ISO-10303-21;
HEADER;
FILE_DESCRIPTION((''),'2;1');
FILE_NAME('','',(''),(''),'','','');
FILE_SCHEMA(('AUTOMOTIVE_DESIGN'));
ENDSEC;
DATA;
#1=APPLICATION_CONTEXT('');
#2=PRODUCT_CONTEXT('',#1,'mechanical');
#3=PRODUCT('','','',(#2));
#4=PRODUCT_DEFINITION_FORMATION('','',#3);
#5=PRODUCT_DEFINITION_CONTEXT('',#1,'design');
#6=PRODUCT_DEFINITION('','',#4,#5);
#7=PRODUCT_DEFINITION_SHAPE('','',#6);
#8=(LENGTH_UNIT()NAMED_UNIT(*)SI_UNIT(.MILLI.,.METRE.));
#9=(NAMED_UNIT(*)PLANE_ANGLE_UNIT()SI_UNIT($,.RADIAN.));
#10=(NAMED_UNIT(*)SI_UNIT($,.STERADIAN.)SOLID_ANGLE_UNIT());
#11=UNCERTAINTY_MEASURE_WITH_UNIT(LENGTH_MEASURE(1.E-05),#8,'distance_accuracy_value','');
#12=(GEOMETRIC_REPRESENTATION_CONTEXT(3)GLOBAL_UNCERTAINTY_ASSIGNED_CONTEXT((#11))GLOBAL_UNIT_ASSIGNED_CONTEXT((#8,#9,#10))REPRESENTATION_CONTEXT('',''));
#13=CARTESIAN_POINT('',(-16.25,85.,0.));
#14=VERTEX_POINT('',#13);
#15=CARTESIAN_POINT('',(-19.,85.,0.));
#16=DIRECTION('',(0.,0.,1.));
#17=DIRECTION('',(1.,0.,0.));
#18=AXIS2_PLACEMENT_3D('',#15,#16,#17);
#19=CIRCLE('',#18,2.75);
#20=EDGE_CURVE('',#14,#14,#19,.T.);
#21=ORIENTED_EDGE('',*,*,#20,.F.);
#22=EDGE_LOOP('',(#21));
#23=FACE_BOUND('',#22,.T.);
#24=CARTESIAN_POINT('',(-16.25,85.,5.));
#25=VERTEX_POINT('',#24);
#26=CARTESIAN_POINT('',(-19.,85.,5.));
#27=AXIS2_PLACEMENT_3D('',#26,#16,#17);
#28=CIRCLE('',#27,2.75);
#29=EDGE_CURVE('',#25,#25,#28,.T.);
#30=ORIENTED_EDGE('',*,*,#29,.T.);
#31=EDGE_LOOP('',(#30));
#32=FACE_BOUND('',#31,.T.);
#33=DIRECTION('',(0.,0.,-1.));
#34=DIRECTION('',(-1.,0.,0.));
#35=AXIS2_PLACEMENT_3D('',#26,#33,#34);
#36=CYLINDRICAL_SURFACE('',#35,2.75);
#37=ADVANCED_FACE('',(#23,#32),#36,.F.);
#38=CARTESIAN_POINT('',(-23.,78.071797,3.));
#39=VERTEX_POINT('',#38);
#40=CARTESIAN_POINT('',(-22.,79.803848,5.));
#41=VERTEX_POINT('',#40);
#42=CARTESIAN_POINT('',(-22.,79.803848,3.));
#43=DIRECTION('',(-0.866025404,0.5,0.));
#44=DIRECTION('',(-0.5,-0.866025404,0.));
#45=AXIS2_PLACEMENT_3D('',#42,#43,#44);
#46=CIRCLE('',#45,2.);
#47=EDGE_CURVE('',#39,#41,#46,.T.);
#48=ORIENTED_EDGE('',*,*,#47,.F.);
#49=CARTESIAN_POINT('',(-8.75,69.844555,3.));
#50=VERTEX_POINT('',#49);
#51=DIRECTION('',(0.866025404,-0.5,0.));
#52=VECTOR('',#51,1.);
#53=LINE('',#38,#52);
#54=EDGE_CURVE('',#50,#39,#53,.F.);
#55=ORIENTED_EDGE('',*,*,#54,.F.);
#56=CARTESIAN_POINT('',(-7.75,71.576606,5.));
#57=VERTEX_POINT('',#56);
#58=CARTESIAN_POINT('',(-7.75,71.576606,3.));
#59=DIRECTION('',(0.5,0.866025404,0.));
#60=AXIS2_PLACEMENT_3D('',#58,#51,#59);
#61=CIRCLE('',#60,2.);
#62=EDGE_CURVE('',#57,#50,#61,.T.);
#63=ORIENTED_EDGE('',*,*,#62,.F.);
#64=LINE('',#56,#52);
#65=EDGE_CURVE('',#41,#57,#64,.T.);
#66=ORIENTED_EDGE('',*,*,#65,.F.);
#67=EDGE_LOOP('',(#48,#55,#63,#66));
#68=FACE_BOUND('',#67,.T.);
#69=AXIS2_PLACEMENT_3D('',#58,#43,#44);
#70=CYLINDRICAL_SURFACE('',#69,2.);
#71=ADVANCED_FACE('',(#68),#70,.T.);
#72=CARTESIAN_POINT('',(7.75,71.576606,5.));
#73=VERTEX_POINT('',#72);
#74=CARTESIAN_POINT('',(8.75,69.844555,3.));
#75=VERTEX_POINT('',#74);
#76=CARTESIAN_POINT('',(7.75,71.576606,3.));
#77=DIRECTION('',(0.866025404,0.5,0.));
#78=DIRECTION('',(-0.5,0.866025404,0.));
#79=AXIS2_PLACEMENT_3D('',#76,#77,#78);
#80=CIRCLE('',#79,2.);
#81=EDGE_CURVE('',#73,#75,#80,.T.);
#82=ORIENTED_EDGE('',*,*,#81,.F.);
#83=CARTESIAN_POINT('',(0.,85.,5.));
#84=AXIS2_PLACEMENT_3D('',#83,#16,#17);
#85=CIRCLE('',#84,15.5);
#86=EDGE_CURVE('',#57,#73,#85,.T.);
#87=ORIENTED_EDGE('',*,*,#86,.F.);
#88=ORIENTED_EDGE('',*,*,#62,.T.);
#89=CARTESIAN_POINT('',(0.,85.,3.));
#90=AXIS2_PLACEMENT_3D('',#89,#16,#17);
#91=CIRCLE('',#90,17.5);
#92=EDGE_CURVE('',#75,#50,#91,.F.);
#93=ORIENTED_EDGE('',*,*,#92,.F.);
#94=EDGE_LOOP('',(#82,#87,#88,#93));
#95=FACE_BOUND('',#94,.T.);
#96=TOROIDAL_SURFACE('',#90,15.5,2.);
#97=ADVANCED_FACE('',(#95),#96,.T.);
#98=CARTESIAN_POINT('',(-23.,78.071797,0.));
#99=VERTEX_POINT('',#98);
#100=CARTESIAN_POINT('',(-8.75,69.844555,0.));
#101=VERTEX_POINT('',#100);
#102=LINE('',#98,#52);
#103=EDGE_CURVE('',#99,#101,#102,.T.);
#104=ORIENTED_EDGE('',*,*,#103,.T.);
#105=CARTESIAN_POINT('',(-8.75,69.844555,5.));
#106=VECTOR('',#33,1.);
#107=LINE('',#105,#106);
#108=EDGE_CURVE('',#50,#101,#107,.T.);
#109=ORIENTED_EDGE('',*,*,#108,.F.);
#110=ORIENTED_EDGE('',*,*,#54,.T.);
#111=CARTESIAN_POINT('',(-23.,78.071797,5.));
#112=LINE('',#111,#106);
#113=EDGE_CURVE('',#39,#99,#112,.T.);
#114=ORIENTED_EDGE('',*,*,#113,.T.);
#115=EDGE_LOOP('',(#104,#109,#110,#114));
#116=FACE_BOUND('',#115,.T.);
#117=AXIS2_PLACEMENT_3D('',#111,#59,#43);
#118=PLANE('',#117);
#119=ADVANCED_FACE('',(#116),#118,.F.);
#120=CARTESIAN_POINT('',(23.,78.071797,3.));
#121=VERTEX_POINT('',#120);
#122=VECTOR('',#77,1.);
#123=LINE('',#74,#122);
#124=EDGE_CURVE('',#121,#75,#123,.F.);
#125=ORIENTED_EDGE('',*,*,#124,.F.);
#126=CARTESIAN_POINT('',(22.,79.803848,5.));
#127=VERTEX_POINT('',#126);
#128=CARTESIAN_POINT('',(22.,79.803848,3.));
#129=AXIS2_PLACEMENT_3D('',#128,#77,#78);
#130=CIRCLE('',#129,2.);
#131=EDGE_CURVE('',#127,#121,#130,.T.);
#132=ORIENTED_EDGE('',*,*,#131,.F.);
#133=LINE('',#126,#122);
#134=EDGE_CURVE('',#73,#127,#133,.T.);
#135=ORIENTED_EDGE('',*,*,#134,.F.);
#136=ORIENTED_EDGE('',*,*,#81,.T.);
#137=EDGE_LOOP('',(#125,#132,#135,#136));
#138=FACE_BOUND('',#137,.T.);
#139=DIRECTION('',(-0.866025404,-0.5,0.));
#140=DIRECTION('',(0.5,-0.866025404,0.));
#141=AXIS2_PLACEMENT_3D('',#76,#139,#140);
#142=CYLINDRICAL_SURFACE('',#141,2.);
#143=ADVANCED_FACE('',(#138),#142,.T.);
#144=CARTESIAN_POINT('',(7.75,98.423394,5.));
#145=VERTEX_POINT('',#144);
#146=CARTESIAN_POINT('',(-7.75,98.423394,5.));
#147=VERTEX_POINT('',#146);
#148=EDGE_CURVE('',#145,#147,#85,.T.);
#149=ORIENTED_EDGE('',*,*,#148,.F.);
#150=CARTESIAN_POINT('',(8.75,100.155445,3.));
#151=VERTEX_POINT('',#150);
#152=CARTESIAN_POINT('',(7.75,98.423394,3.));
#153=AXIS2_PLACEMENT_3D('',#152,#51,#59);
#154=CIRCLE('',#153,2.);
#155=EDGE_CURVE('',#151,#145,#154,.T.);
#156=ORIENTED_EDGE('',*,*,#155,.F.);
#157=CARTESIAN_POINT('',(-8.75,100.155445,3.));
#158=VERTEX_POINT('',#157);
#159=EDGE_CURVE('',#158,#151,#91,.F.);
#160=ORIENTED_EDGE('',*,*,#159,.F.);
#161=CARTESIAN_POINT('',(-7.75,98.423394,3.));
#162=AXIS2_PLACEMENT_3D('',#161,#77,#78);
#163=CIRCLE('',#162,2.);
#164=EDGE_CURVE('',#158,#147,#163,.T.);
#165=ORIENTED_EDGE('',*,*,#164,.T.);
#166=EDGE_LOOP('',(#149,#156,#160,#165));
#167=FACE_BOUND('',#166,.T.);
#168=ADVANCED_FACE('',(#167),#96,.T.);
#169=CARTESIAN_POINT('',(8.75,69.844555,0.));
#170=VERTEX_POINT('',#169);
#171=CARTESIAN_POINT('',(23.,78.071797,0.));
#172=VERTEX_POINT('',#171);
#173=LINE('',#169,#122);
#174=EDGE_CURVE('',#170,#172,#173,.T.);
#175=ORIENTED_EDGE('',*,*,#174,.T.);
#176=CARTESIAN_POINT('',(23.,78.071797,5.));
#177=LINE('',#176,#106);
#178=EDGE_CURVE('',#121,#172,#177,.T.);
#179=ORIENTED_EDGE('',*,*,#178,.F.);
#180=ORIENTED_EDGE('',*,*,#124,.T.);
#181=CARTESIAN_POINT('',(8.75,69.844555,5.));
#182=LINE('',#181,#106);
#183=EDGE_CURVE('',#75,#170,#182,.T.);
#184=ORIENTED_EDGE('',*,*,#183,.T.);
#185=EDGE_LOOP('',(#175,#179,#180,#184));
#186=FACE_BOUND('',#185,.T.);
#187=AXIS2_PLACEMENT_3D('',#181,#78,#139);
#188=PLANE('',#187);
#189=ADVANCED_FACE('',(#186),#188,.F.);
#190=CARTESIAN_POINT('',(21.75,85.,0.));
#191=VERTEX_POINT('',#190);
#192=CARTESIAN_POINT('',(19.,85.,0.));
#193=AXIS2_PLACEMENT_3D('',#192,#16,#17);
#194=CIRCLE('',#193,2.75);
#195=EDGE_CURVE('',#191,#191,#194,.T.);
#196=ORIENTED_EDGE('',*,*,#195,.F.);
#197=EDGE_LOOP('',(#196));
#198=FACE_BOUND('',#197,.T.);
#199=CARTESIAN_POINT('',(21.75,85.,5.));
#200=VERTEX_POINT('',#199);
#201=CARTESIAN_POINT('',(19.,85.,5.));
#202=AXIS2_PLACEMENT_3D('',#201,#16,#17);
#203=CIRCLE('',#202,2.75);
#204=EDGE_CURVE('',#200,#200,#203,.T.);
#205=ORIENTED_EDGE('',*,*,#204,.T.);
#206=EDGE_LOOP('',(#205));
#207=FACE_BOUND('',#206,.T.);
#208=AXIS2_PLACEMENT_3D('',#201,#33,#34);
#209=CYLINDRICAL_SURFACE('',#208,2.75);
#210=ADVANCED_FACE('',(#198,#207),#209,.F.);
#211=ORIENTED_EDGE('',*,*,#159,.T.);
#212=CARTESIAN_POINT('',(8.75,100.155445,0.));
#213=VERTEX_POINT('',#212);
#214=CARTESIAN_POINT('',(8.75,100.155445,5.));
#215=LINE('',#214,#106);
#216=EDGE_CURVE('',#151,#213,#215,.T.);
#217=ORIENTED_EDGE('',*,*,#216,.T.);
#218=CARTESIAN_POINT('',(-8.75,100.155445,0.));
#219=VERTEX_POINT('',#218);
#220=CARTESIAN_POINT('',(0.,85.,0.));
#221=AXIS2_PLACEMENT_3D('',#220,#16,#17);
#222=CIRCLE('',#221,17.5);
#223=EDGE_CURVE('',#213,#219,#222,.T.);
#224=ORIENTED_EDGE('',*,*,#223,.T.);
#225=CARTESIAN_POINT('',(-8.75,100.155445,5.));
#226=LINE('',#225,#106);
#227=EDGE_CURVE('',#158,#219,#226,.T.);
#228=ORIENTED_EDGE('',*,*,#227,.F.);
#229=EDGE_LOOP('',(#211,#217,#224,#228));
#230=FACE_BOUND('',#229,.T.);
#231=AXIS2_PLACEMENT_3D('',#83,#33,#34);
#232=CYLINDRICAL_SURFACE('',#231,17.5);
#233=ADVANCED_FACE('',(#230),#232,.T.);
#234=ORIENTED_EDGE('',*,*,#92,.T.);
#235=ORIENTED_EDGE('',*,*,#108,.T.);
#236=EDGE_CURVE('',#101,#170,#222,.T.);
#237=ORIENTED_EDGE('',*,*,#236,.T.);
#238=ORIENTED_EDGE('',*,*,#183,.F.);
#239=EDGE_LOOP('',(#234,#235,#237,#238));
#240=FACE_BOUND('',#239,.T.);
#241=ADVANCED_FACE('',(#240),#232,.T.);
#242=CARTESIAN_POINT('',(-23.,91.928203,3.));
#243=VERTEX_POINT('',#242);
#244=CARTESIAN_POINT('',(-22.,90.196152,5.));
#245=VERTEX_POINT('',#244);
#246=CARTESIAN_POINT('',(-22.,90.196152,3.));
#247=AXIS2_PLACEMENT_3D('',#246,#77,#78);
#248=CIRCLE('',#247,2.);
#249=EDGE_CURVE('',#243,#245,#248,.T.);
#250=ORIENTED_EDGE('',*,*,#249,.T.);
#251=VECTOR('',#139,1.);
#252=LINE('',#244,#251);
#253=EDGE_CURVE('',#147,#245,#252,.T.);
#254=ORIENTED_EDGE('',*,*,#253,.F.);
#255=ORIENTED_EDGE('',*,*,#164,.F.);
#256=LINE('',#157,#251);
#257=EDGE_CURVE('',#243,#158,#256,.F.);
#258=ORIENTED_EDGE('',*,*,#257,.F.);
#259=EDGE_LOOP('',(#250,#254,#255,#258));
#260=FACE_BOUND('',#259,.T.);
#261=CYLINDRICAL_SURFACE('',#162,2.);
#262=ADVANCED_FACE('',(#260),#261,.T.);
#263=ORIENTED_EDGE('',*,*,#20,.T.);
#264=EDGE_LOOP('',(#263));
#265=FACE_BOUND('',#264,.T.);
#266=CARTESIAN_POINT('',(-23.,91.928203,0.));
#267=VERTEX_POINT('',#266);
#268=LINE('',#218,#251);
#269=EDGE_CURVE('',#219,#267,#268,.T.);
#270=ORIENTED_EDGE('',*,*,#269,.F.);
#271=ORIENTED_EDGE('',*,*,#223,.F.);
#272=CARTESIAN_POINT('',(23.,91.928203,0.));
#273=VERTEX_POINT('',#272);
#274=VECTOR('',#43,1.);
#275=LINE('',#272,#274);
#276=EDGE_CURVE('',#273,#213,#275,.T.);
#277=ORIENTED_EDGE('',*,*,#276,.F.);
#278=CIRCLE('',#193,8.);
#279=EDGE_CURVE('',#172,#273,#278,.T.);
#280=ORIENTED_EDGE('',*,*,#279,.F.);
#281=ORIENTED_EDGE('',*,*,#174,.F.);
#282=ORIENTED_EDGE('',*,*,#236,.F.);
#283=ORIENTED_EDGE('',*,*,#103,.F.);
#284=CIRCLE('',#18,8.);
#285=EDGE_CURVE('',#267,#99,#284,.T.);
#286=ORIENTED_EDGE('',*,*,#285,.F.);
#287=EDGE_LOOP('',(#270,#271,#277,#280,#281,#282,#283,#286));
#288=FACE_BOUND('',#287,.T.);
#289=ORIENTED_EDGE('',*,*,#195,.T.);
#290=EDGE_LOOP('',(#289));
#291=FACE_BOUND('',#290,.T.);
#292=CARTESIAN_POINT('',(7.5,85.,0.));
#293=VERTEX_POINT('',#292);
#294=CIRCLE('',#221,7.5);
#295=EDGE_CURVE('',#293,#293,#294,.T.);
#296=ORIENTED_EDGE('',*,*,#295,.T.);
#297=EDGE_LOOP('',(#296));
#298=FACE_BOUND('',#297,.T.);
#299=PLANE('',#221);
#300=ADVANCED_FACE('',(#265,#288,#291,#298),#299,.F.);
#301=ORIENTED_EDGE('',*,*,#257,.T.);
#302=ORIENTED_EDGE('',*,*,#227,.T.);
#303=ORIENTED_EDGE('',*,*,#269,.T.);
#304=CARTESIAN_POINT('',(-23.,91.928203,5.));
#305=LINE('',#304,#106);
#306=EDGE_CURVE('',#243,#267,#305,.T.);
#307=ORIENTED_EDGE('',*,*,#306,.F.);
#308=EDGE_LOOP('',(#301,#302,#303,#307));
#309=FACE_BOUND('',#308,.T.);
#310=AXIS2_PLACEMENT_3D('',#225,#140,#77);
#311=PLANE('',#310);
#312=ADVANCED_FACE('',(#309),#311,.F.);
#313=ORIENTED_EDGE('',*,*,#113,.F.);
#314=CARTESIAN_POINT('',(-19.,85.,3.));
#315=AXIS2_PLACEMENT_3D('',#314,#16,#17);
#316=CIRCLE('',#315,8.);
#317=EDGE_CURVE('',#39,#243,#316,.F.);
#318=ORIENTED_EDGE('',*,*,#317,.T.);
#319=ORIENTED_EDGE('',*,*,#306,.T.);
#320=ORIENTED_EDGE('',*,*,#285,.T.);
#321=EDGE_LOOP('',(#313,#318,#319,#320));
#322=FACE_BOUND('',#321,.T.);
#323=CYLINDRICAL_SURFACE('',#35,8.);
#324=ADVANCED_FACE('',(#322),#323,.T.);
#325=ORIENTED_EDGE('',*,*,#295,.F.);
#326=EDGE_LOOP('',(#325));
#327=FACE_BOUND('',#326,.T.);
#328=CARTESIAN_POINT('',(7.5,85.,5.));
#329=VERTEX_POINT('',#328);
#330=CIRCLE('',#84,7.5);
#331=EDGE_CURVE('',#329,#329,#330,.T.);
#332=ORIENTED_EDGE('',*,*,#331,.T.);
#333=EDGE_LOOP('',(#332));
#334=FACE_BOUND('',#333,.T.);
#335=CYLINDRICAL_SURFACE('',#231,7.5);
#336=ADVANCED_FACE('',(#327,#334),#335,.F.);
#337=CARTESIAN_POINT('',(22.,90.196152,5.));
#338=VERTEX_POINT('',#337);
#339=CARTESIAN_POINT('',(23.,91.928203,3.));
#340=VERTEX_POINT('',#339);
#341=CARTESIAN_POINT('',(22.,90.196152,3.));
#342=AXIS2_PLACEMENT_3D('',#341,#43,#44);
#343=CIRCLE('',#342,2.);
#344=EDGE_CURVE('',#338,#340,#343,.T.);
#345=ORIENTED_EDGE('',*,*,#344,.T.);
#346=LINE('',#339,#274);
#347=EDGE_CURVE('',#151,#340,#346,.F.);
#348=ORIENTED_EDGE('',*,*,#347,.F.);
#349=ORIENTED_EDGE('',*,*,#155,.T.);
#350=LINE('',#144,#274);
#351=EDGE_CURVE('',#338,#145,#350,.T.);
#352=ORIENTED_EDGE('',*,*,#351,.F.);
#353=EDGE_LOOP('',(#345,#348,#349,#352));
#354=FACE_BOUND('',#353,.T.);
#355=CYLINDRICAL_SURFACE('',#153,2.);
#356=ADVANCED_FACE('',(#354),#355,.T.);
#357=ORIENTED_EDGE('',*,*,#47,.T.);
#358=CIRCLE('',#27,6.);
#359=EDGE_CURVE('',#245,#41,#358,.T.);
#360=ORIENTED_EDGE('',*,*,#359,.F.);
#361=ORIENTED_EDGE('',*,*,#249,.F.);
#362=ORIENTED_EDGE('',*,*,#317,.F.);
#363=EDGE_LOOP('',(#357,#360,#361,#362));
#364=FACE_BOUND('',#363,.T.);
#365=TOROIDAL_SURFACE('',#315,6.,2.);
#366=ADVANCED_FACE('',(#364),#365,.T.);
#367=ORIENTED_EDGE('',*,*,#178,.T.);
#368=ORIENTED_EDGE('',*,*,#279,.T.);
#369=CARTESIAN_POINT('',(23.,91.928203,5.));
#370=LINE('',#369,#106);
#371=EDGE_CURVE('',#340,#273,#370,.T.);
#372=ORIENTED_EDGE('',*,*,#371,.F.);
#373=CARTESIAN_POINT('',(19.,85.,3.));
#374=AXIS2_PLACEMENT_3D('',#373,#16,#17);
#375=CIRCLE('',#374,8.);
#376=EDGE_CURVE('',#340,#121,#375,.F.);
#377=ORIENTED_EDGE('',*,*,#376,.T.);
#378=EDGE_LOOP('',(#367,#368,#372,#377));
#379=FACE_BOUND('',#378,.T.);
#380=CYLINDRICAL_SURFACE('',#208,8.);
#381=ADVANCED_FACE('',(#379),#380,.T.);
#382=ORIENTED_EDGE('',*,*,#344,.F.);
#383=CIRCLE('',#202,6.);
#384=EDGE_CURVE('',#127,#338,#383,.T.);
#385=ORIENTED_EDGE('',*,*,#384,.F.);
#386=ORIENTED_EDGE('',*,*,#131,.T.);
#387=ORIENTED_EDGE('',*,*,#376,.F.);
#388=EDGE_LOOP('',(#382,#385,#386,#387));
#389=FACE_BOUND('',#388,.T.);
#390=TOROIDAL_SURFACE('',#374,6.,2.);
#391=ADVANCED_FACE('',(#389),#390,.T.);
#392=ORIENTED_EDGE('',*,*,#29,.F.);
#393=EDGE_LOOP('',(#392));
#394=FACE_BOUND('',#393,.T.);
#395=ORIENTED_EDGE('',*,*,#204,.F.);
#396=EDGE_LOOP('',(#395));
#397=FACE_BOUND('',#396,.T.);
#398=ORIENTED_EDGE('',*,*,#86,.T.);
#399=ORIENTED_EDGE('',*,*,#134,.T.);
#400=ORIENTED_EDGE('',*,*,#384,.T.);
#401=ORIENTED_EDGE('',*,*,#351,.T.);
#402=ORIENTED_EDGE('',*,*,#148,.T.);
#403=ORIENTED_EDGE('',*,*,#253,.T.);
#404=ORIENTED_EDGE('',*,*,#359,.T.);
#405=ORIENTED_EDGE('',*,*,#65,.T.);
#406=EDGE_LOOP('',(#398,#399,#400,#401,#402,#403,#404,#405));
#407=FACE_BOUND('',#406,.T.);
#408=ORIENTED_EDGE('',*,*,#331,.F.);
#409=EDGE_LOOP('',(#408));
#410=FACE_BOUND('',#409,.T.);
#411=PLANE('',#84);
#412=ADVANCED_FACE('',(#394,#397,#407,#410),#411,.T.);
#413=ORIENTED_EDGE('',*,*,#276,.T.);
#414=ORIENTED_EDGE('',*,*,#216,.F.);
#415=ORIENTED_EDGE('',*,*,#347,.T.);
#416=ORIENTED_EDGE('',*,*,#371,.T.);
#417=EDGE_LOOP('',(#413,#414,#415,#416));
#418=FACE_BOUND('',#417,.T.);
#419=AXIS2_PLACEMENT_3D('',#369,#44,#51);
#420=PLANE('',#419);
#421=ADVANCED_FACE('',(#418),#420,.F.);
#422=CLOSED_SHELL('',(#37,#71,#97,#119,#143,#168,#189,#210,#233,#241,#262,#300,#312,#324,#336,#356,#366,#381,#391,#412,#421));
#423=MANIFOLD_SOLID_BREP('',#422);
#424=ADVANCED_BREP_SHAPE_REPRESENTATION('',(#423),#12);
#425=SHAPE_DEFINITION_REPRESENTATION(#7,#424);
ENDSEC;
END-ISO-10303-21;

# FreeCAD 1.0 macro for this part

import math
import FreeCAD as App
import Part
import Sketcher
from FreeCAD import Vector
Q = App.Units.Quantity


def edges_at(feature, points):
    """Names of the edges that pass closest to the given points."""
    edges = feature.Shape.Edges
    near = lambda p: min(range(len(edges)), key=lambda i: edges[i].distToShape(Part.Vertex(*p))[0])
    return sorted({f"Edge{near(p) + 1}" for p in points})

doc = App.newDocument("Part")
params = doc.addObject("Spreadsheet::Sheet", "Params")
for row, (alias, value) in enumerate([
    ("sketch1_diameter", "15 mm"),
    ("sketch1_radius", "8 mm"),
    ("sketch1_diameter2", "5.5 mm"),
    ("sketch1_radius2", "17.5 mm"),
    ("pad1_length", "5 mm"),
    ("fillet_radius", "2 mm"),
], start=1):
    params.set(f"A{row}", alias)
    params.set(f"B{row}", "=" + value)
    params.setAlias(f"B{row}", alias)

body = doc.addObject("PartDesign::Body", "Body")

sketch1 = body.newObject("Sketcher::SketchObject", "Sketch")
sketch1.AttachmentSupport = (doc.getObject("XY_Plane"), [""])
sketch1.MapMode = "FlatFace"
sketch1.addGeometry(Part.LineSegment(Vector(-8.8, 100.2, 0), Vector(-23, 91.9, 0)), False)
sketch1.addGeometry(Part.ArcOfCircle(Part.Circle(Vector(-19, 85, 0), Vector(0, 0, 1), 8), math.radians(120), math.radians(240)), False)
sketch1.addGeometry(Part.LineSegment(Vector(-23, 78.1, 0), Vector(-8.8, 69.8, 0)), False)
sketch1.addGeometry(Part.ArcOfCircle(Part.Circle(Vector(0, 85, 0), Vector(0, 0, 1), 17.5), math.radians(-120), math.radians(-60)), False)
sketch1.addGeometry(Part.LineSegment(Vector(8.8, 69.8, 0), Vector(23, 78.1, 0)), False)
sketch1.addGeometry(Part.ArcOfCircle(Part.Circle(Vector(19, 85, 0), Vector(0, 0, 1), 8), math.radians(-60), math.radians(60)), False)
sketch1.addGeometry(Part.LineSegment(Vector(23, 91.9, 0), Vector(8.8, 100.2, 0)), False)
sketch1.addGeometry(Part.ArcOfCircle(Part.Circle(Vector(0, 85, 0), Vector(0, 0, 1), 17.5), math.radians(60), math.radians(120)), False)
sketch1.addGeometry(Part.Circle(Vector(-19, 85, 0), Vector(0, 0, 1), 2.8), False)
sketch1.addGeometry(Part.Circle(Vector(0, 85, 0), Vector(0, 0, 1), 7.5), False)
sketch1.addGeometry(Part.Circle(Vector(19, 85, 0), Vector(0, 0, 1), 2.8), False)
sketch1.addConstraint(Sketcher.Constraint("Tangent", 0, 2, 1, 1))
sketch1.addConstraint(Sketcher.Constraint("Tangent", 1, 2, 2, 1))
sketch1.addConstraint(Sketcher.Constraint("Tangent", 2, 2, 3, 1))
sketch1.addConstraint(Sketcher.Constraint("Tangent", 3, 2, 4, 1))
sketch1.addConstraint(Sketcher.Constraint("Tangent", 4, 2, 5, 1))
sketch1.addConstraint(Sketcher.Constraint("Tangent", 5, 2, 6, 1))
sketch1.addConstraint(Sketcher.Constraint("Tangent", 6, 2, 7, 1))
sketch1.addConstraint(Sketcher.Constraint("Tangent", 7, 2, 0, 1))
sketch1.addConstraint(Sketcher.Constraint("Coincident", 7, 3, 3, 3))
sketch1.addConstraint(Sketcher.Constraint("Coincident", 8, 3, 1, 3))
sketch1.addConstraint(Sketcher.Constraint("Coincident", 9, 3, 3, 3))
sketch1.addConstraint(Sketcher.Constraint("Coincident", 10, 3, 5, 3))
sketch1.addConstraint(Sketcher.Constraint("Equal", 1, 5))
sketch1.addConstraint(Sketcher.Constraint("Equal", 3, 7))
sketch1.addConstraint(Sketcher.Constraint("Equal", 8, 10))
sketch1.addConstraint(Sketcher.Constraint("Symmetric", 1, 3, 5, 3, -2))
sketch1.addConstraint(Sketcher.Constraint("PointOnObject", 3, 3, -2))
sketch1.addConstraint(Sketcher.Constraint("Parallel", 0, 4))
sketch1.addConstraint(Sketcher.Constraint("Diameter", 9, 15.0))
sketch1.addConstraint(Sketcher.Constraint("Radius", 1, 8.0))
sketch1.addConstraint(Sketcher.Constraint("Diameter", 8, 5.5))
sketch1.addConstraint(Sketcher.Constraint("Radius", 3, 17.5))
sketch1.addConstraint(Sketcher.Constraint("Angle", 0, Q("-150 deg")))
sketch1.addConstraint(Sketcher.Constraint("DistanceY", -1, 1, 1, 3, 85.0))
sketch1.setExpression("Constraints[18]", "Params.sketch1_diameter")
sketch1.setExpression("Constraints[19]", "Params.sketch1_radius")
sketch1.setExpression("Constraints[20]", "Params.sketch1_diameter2")
sketch1.setExpression("Constraints[21]", "Params.sketch1_radius2")
pad1 = body.newObject("PartDesign::Pad", "Pad")
pad1.Profile = sketch1
pad1.setExpression("Length", "Params.pad1_length")
doc.recompute()

fillet = body.newObject("PartDesign::Fillet", "Fillet")
fillet.Base = (pad1, edges_at(pad1, [
    (-27, 85, 5),
    (-15.875, 73.958, 5),
    (0, 67.5, 5),
    (15.875, 73.958, 5),
    (27, 85, 5),
    (15.875, 96.042, 5),
    (0, 102.5, 5),
    (-15.875, 96.042, 5),
]))
fillet.setExpression("Radius", "Params.fillet_radius")

doc.recompute()
